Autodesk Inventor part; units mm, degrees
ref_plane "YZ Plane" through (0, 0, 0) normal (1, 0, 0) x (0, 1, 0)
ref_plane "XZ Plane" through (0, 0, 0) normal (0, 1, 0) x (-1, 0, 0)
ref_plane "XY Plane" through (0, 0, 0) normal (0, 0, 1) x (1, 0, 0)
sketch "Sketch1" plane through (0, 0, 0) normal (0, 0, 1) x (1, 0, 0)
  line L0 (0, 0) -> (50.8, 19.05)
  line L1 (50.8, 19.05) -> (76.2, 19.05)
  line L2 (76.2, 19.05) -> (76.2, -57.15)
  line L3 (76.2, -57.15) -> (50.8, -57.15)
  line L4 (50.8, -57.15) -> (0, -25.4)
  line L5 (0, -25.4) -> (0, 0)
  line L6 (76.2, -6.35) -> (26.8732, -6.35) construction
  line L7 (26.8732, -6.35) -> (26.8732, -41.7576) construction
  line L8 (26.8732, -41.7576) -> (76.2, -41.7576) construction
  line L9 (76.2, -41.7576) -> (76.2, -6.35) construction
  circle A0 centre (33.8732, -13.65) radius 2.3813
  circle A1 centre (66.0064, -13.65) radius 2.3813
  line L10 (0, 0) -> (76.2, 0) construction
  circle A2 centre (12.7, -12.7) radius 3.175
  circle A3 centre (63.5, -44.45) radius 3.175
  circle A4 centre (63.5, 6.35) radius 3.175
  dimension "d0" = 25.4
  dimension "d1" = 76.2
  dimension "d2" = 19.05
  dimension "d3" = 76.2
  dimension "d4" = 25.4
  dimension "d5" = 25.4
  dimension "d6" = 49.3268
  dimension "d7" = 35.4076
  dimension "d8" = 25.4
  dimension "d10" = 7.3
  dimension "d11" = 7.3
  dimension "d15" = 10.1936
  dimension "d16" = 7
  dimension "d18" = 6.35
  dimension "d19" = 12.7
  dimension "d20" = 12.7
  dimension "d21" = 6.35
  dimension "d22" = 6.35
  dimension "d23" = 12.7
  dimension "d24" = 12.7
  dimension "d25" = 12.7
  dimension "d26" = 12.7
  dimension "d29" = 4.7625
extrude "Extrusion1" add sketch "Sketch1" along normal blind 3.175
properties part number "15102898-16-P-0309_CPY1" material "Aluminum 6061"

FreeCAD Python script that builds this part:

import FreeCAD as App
import Part
import Sketcher

V = App.Vector
Q = App.Units.Quantity

doc = App.newDocument("Part")
params = doc.addObject("Spreadsheet::Sheet", "Params")
for row, (alias, value) in enumerate([
    ("sketch1_diameter", "0.25 in"),
    ("sketch1_width", "1 in"),
    ("sketch1_height", "3 in"),
    ("sketch1_diameter2", "0.1875 in"),
    ("pad1_length", "0.125 in"),
], start=1):
    params.set(f"A{row}", alias)
    params.set(f"B{row}", "=" + value)
    params.setAlias(f"B{row}", alias)

body = doc.addObject("PartDesign::Body", "Body")

# Sketch on XY plane
sketch1 = body.newObject("Sketcher::SketchObject", "Sketch")
sketch1.AttachmentSupport = (doc.getObject("XY_Plane"), [""])
sketch1.MapMode = "FlatFace"
sketch1.addGeometry([
    Part.LineSegment(V(50.8, 19.1, 0), V(0, 0, 0)),  # 0
    Part.LineSegment(V(0, 0, 0), V(0, -25.4, 0)),  # 1
    Part.LineSegment(V(0, -25.4, 0), V(50.8, -57.1, 0)),  # 2
    Part.LineSegment(V(50.8, -57.1, 0), V(76.2, -57.1, 0)),  # 3
    Part.LineSegment(V(76.2, -57.1, 0), V(76.2, 19.1, 0)),  # 4
    Part.LineSegment(V(76.2, 19.1, 0), V(50.8, 19.1, 0)),  # 5
    Part.Circle(V(63.5, -44.5, 0), V(0, 0, 1), 3.2),  # 6
    Part.Circle(V(12.7, -12.7, 0), V(0, 0, 1), 3.2),  # 7
    Part.Circle(V(33.9, -13.7, 0), V(0, 0, 1), 2.4),  # 8
    Part.Circle(V(66, -13.7, 0), V(0, 0, 1), 2.4),  # 9
    Part.Circle(V(63.5, 6.3, 0), V(0, 0, 1), 3.2),  # 10
], False)
sketch1.addConstraint([
    Sketcher.Constraint("Coincident", 0, 2, 1, 1),
    Sketcher.Constraint("Coincident", 1, 2, 2, 1),
    Sketcher.Constraint("Coincident", 2, 2, 3, 1),
    Sketcher.Constraint("Coincident", 3, 2, 4, 1),
    Sketcher.Constraint("Coincident", 4, 2, 5, 1),
    Sketcher.Constraint("Coincident", 5, 2, 0, 1),
    Sketcher.Constraint("Vertical", 1),
    Sketcher.Constraint("Horizontal", 3),
    Sketcher.Constraint("Vertical", 4),
    Sketcher.Constraint("Horizontal", 5),
    Sketcher.Constraint("Coincident", 0, 2, -1, 1),
    Sketcher.Constraint("Equal", 6, 7),
    Sketcher.Constraint("Equal", 8, 9),
    Sketcher.Constraint("Equal", 7, 10),
    Sketcher.Constraint("Horizontal", 8, 3, 9, 3),
    Sketcher.Constraint("Vertical", 6, 3, 10, 3),
    Sketcher.Constraint("Vertical", 2, 2, 5, 2),
    Sketcher.Constraint("Equal", 5, 1),
    Sketcher.Constraint("Diameter", 6, Q("0.25 in")),
    Sketcher.Constraint("DistanceX", 3, 1, 3, 2, Q("1 in")),
    Sketcher.Constraint("DistanceY", 4, 1, 4, 2, Q("3 in")),
    Sketcher.Constraint("Diameter", 8, Q("0.1875 in")),
    Sketcher.Constraint("DistanceX", -1, 1, 3, 2, Q("3 in")),
    Sketcher.Constraint("DistanceX", -1, 1, 7, 3, Q("0.5 in")),
    Sketcher.Constraint("DistanceY", 7, 3, -1, 1, Q("0.5 in")),
    Sketcher.Constraint("DistanceX", 2, 2, 6, 3, Q("0.5 in")),
    Sketcher.Constraint("DistanceY", 2, 2, 6, 3, Q("0.5 in")),
    Sketcher.Constraint("DistanceY", 10, 3, 4, 2, Q("0.5 in")),
    Sketcher.Constraint("DistanceY", -1, 1, 10, 3, Q("0.25 in")),
    Sketcher.Constraint("DistanceX", 9, 3, 3, 2, Q("10.1936 mm")),
    Sketcher.Constraint("DistanceX", -1, 1, 8, 3, Q("1.3336 in")),
    Sketcher.Constraint("DistanceY", 8, 3, -1, 1, Q("0.5374 in")),
])
sketch1.setExpression("Constraints[18]", "Params.sketch1_diameter")
sketch1.setExpression("Constraints[19]", "Params.sketch1_width")
sketch1.setExpression("Constraints[20]", "Params.sketch1_height")
sketch1.setExpression("Constraints[21]", "Params.sketch1_diameter2")
pad1 = body.newObject("PartDesign::Pad", "Pad")
pad1.Profile = sketch1
pad1.setExpression("Length", "Params.pad1_length")

doc.recompute()
